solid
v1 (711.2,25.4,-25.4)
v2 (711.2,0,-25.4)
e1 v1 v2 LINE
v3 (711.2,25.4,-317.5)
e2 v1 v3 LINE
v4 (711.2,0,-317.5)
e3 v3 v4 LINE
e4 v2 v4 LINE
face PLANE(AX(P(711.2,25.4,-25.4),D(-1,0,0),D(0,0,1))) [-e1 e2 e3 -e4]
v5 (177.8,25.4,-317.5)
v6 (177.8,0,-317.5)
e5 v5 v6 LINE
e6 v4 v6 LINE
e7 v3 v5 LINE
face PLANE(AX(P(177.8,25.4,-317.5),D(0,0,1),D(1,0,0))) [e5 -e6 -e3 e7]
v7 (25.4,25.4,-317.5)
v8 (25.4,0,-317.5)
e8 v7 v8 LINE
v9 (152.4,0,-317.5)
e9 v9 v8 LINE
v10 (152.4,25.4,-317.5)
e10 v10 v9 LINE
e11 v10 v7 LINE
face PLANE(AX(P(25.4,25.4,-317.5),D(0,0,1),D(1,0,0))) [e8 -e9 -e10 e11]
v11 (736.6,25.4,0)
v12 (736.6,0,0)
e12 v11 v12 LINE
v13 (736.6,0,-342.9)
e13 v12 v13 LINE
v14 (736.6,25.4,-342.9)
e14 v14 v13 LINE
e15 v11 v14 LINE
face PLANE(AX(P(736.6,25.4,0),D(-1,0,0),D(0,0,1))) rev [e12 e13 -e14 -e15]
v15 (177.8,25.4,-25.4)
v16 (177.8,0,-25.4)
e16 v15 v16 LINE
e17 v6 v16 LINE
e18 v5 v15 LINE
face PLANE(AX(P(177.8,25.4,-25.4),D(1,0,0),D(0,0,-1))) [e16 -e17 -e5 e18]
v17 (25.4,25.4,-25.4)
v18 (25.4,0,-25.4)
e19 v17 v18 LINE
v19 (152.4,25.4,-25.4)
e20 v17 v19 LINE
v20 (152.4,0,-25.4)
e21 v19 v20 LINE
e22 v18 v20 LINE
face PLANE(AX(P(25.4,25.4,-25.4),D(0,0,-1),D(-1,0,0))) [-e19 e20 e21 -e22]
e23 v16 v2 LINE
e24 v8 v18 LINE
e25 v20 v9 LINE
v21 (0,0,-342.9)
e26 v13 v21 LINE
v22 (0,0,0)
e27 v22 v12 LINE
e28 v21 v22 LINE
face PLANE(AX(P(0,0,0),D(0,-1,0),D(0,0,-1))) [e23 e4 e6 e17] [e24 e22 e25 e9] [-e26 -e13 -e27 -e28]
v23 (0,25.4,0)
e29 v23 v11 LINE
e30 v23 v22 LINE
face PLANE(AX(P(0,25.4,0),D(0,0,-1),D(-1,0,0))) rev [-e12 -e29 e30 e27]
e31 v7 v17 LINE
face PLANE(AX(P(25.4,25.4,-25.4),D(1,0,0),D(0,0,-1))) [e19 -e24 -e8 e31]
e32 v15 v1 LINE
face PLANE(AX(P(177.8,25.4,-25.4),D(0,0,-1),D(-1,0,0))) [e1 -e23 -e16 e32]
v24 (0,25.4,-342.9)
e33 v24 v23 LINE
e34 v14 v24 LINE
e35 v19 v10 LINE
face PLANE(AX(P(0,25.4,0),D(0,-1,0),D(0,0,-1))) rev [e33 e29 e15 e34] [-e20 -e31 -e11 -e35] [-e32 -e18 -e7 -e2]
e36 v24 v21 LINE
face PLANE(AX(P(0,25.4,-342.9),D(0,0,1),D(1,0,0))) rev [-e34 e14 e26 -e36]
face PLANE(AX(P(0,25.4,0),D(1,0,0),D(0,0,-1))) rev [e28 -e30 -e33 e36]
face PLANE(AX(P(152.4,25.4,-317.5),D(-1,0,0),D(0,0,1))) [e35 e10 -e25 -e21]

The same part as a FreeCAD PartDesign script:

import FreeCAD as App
import Part
import Sketcher
Q = App.Units.Quantity

doc = App.newDocument("Part")
body = doc.addObject("PartDesign::Body", "Body")

# Sketch on XZ plane
sketch1 = body.newObject("Sketcher::SketchObject", "Sketch")
sketch1.AttachmentSupport = (doc.getObject("XZ_Plane"), [""])
sketch1.MapMode = "FlatFace"
sketch1.addGeometry(Part.LineSegment(App.Vector(0, -343, 0), App.Vector(0, 0, 0)), False)
sketch1.addGeometry(Part.LineSegment(App.Vector(0, 0, 0), App.Vector(737, 0, 0)), False)
sketch1.addGeometry(Part.LineSegment(App.Vector(737, 0, 0), App.Vector(737, -343, 0)), False)
sketch1.addGeometry(Part.LineSegment(App.Vector(737, -343, 0), App.Vector(0, -343, 0)), False)
sketch1.addGeometry(Part.LineSegment(App.Vector(152, -25, 0), App.Vector(25, -25, 0)), False)
sketch1.addGeometry(Part.LineSegment(App.Vector(25, -25, 0), App.Vector(25, -318, 0)), False)
sketch1.addGeometry(Part.LineSegment(App.Vector(25, -318, 0), App.Vector(152, -318, 0)), False)
sketch1.addGeometry(Part.LineSegment(App.Vector(152, -318, 0), App.Vector(152, -25, 0)), False)
sketch1.addGeometry(Part.LineSegment(App.Vector(711, -25, 0), App.Vector(178, -25, 0)), False)
sketch1.addGeometry(Part.LineSegment(App.Vector(178, -25, 0), App.Vector(178, -318, 0)), False)
sketch1.addGeometry(Part.LineSegment(App.Vector(178, -318, 0), App.Vector(711, -318, 0)), False)
sketch1.addGeometry(Part.LineSegment(App.Vector(711, -318, 0), App.Vector(711, -25, 0)), False)
sketch1.addConstraint(Sketcher.Constraint("Coincident", 0, 2, 1, 1))
sketch1.addConstraint(Sketcher.Constraint("Coincident", 1, 2, 2, 1))
sketch1.addConstraint(Sketcher.Constraint("Coincident", 2, 2, 3, 1))
sketch1.addConstraint(Sketcher.Constraint("Coincident", 3, 2, 0, 1))
sketch1.addConstraint(Sketcher.Constraint("Coincident", 4, 2, 5, 1))
sketch1.addConstraint(Sketcher.Constraint("Coincident", 5, 2, 6, 1))
sketch1.addConstraint(Sketcher.Constraint("Coincident", 6, 2, 7, 1))
sketch1.addConstraint(Sketcher.Constraint("Coincident", 7, 2, 4, 1))
sketch1.addConstraint(Sketcher.Constraint("Coincident", 8, 2, 9, 1))
sketch1.addConstraint(Sketcher.Constraint("Coincident", 9, 2, 10, 1))
sketch1.addConstraint(Sketcher.Constraint("Coincident", 10, 2, 11, 1))
sketch1.addConstraint(Sketcher.Constraint("Coincident", 11, 2, 8, 1))
sketch1.addConstraint(Sketcher.Constraint("Vertical", 0))
sketch1.addConstraint(Sketcher.Constraint("Horizontal", 1))
sketch1.addConstraint(Sketcher.Constraint("Vertical", 2))
sketch1.addConstraint(Sketcher.Constraint("Horizontal", 3))
sketch1.addConstraint(Sketcher.Constraint("Horizontal", 4))
sketch1.addConstraint(Sketcher.Constraint("Vertical", 5))
sketch1.addConstraint(Sketcher.Constraint("Horizontal", 6))
sketch1.addConstraint(Sketcher.Constraint("Vertical", 7))
sketch1.addConstraint(Sketcher.Constraint("Horizontal", 8))
sketch1.addConstraint(Sketcher.Constraint("Vertical", 9))
sketch1.addConstraint(Sketcher.Constraint("Horizontal", 10))
sketch1.addConstraint(Sketcher.Constraint("Vertical", 11))
sketch1.addConstraint(Sketcher.Constraint("Coincident", 0, 2, -1, 1))
sketch1.addConstraint(Sketcher.Constraint("Horizontal", 7, 2, 8, 2))
sketch1.addConstraint(Sketcher.Constraint("Horizontal", 6, 2, 9, 2))
sketch1.addConstraint(Sketcher.Constraint("DistanceX", 1, 1, 1, 2, Q("29 in")))
sketch1.addConstraint(Sketcher.Constraint("DistanceX", 4, 2, 4, 1, Q("5 in")))
sketch1.addConstraint(Sketcher.Constraint("DistanceX", 8, 2, 8, 1, Q("21 in")))
sketch1.addConstraint(Sketcher.Constraint("DistanceY", 0, 1, 0, 2, Q("13.5 in")))
sketch1.addConstraint(Sketcher.Constraint("DistanceY", 5, 2, 5, 1, Q("11.5 in")))
sketch1.addConstraint(Sketcher.Constraint("DistanceX", -1, 1, 4, 2, Q("1 in")))
sketch1.addConstraint(Sketcher.Constraint("DistanceY", 4, 2, -1, 1, Q("1 in")))
sketch1.addConstraint(Sketcher.Constraint("DistanceX", -1, 1, 8, 2, Q("7 in")))
pad1 = body.newObject("PartDesign::Pad", "Pad")
pad1.Profile = sketch1
pad1.Length = Q("1 in")
pad1.Reversed = True

doc.recompute()
